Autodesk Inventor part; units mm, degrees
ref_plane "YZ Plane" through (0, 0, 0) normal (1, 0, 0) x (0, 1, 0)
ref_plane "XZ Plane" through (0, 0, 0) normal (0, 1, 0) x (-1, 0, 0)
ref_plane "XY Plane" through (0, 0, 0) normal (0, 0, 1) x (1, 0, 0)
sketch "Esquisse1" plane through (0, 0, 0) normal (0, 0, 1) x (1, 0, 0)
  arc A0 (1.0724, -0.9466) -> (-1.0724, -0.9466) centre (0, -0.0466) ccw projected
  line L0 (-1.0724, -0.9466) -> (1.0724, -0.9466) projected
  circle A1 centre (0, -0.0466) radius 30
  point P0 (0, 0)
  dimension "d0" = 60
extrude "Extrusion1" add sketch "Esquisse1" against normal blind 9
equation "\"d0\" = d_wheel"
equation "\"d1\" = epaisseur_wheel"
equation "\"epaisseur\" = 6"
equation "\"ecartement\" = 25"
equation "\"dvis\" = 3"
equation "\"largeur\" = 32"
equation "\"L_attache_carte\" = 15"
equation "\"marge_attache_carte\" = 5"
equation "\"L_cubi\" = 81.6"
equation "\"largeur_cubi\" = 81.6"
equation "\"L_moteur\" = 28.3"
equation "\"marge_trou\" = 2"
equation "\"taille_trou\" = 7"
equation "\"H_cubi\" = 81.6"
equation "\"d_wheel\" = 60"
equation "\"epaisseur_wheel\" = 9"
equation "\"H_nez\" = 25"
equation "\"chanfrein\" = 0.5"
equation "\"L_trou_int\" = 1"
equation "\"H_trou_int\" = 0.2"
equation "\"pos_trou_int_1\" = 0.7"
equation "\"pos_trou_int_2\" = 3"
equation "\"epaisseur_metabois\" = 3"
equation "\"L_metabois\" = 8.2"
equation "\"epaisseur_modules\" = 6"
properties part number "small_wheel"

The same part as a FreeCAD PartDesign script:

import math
import FreeCAD as App
import Part
import Sketcher
from FreeCAD import Vector
Q = App.Units.Quantity

doc = App.newDocument("Part")
params = doc.addObject("Spreadsheet::Sheet", "Params")
for row, (alias, value) in enumerate([
    ("sketch1_diameter", "60 mm"),
    ("sketch1_radius", "1.4 mm"),
    ("pad1_length", "9 mm"),
], start=1):
    params.set(f"A{row}", alias)
    params.set(f"B{row}", "=" + value)
    params.setAlias(f"B{row}", alias)

body = doc.addObject("PartDesign::Body", "Body")

sketch1 = body.newObject("Sketcher::SketchObject", "Sketch")
sketch1.AttachmentSupport = (doc.getObject("XY_Plane"), [""])
sketch1.MapMode = "FlatFace"
sketch1.addGeometry([
    Part.Circle(Vector(0, -0.0466, 0), Vector(0, 0, 1), 30),
    Part.ArcOfCircle(Part.Circle(Vector(0, -0.0466, 0), Vector(0, 0, 1), 1.400015), math.radians(-40.004689), math.radians(220.004689)),
    Part.LineSegment(Vector(1.0724, -0.9466, 0), Vector(-1.0724, -0.9466, 0)),
], False)
sketch1.addConstraint([
    Sketcher.Constraint("Coincident", 1, 1, 2, 1),
    Sketcher.Constraint("Coincident", 2, 2, 1, 2),
    Sketcher.Constraint("Horizontal", 2),
    Sketcher.Constraint("Coincident", 1, 3, 0, 3),
    Sketcher.Constraint("PointOnObject", 0, 3, -2),
    Sketcher.Constraint("Diameter", 0, Q("60 mm")),
    Sketcher.Constraint("Radius", 1, Q("1.4 mm")),
    Sketcher.Constraint("DistanceY", 1, 1, 0, 3, Q("0.9 mm")),
    Sketcher.Constraint("DistanceY", 0, 3, -1, 1, Q("0.0466 mm")),
])
sketch1.setExpression("Constraints[5]", "Params.sketch1_diameter")
sketch1.setExpression("Constraints[6]", "Params.sketch1_radius")
pad1 = body.newObject("PartDesign::Pad", "Pad")
pad1.Profile = sketch1
pad1.setExpression("Length", "Params.pad1_length")
pad1.Reversed = True

doc.recompute()
